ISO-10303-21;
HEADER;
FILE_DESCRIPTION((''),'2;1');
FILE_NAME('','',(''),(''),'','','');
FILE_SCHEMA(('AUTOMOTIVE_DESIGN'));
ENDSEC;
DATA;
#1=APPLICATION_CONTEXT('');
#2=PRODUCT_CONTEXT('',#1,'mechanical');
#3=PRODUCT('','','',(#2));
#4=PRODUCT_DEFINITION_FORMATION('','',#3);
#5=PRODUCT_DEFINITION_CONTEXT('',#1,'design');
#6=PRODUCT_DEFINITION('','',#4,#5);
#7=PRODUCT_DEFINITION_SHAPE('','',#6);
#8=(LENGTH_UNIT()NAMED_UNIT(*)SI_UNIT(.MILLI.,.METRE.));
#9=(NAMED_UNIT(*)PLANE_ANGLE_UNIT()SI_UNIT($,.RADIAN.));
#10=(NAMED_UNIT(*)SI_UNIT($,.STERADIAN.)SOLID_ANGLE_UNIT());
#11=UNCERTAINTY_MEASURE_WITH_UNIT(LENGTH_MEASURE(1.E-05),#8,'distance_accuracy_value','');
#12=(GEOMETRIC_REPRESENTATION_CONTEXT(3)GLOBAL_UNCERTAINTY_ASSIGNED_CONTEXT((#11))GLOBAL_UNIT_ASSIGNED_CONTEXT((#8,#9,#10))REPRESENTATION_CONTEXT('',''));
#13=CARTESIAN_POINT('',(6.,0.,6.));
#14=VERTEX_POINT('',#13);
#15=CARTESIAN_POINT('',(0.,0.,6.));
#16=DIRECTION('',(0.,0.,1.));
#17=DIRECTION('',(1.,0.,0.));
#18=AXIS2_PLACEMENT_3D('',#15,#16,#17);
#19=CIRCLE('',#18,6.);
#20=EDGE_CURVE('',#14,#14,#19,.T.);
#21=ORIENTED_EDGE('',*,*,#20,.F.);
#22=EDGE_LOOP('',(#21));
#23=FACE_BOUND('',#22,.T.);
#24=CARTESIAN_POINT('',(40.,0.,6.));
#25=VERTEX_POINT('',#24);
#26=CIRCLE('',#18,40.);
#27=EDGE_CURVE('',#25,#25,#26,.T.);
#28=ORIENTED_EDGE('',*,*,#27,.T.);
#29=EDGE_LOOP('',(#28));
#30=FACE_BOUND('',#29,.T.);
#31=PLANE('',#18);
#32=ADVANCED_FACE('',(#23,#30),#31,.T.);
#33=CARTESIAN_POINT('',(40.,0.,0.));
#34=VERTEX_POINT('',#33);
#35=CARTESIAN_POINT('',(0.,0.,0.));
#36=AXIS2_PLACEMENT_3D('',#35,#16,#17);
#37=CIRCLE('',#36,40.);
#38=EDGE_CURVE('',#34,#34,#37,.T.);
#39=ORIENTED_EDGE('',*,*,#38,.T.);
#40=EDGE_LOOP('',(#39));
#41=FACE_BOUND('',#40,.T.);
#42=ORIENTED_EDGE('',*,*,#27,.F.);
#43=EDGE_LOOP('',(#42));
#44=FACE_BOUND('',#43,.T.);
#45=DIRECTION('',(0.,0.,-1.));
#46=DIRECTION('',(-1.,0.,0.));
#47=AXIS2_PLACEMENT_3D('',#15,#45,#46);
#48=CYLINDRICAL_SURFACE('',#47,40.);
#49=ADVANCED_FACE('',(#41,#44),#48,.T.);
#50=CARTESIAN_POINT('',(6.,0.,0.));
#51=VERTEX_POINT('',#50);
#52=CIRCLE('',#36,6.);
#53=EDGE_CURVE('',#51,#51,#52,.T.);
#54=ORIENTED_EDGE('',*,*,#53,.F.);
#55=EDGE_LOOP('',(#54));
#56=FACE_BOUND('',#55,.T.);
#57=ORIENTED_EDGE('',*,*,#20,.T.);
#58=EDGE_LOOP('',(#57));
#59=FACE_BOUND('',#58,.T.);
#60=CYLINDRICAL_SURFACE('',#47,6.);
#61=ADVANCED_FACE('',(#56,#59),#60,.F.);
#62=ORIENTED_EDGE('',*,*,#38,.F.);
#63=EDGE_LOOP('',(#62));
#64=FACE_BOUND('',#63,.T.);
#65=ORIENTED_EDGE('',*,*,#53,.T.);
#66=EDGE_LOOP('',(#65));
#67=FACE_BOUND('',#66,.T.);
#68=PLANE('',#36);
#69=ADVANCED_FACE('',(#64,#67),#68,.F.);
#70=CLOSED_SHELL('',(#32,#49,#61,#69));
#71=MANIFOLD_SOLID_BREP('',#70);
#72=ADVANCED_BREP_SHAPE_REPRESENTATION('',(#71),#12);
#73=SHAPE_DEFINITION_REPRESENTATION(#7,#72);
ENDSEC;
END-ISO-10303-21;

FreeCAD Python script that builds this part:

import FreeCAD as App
import Part
import Sketcher
Q = App.Units.Quantity

doc = App.newDocument("Part")
body = doc.addObject("PartDesign::Body", "Body")

# Sketch on XY plane
sketch1 = doc.addObject("Sketcher::SketchObject", "Sketch")
body.addObject(sketch1)
sketch1.AttachmentSupport = (doc.XY_Plane, [""])
sketch1.MapMode = "FlatFace"
sketch1.addGeometry(Part.Circle(App.Vector(0, 0, 0), App.Vector(0, 0, 1), 40), False)
sketch1.addGeometry(Part.Circle(App.Vector(0, 0, 0), App.Vector(0, 0, 1), 6), False)
sketch1.addConstraint(Sketcher.Constraint("Coincident", 0, 3, -1, 1))
sketch1.addConstraint(Sketcher.Constraint("Coincident", 1, 3, -1, 1))
sketch1.addConstraint(Sketcher.Constraint("Diameter", 0, Q("80 mm")))
sketch1.addConstraint(Sketcher.Constraint("Diameter", 1, Q("12 mm")))
pad1 = doc.addObject("PartDesign::Pad", "Pad")
body.addObject(pad1)
pad1.Profile = sketch1
pad1.Length = 6

doc.recompute()
